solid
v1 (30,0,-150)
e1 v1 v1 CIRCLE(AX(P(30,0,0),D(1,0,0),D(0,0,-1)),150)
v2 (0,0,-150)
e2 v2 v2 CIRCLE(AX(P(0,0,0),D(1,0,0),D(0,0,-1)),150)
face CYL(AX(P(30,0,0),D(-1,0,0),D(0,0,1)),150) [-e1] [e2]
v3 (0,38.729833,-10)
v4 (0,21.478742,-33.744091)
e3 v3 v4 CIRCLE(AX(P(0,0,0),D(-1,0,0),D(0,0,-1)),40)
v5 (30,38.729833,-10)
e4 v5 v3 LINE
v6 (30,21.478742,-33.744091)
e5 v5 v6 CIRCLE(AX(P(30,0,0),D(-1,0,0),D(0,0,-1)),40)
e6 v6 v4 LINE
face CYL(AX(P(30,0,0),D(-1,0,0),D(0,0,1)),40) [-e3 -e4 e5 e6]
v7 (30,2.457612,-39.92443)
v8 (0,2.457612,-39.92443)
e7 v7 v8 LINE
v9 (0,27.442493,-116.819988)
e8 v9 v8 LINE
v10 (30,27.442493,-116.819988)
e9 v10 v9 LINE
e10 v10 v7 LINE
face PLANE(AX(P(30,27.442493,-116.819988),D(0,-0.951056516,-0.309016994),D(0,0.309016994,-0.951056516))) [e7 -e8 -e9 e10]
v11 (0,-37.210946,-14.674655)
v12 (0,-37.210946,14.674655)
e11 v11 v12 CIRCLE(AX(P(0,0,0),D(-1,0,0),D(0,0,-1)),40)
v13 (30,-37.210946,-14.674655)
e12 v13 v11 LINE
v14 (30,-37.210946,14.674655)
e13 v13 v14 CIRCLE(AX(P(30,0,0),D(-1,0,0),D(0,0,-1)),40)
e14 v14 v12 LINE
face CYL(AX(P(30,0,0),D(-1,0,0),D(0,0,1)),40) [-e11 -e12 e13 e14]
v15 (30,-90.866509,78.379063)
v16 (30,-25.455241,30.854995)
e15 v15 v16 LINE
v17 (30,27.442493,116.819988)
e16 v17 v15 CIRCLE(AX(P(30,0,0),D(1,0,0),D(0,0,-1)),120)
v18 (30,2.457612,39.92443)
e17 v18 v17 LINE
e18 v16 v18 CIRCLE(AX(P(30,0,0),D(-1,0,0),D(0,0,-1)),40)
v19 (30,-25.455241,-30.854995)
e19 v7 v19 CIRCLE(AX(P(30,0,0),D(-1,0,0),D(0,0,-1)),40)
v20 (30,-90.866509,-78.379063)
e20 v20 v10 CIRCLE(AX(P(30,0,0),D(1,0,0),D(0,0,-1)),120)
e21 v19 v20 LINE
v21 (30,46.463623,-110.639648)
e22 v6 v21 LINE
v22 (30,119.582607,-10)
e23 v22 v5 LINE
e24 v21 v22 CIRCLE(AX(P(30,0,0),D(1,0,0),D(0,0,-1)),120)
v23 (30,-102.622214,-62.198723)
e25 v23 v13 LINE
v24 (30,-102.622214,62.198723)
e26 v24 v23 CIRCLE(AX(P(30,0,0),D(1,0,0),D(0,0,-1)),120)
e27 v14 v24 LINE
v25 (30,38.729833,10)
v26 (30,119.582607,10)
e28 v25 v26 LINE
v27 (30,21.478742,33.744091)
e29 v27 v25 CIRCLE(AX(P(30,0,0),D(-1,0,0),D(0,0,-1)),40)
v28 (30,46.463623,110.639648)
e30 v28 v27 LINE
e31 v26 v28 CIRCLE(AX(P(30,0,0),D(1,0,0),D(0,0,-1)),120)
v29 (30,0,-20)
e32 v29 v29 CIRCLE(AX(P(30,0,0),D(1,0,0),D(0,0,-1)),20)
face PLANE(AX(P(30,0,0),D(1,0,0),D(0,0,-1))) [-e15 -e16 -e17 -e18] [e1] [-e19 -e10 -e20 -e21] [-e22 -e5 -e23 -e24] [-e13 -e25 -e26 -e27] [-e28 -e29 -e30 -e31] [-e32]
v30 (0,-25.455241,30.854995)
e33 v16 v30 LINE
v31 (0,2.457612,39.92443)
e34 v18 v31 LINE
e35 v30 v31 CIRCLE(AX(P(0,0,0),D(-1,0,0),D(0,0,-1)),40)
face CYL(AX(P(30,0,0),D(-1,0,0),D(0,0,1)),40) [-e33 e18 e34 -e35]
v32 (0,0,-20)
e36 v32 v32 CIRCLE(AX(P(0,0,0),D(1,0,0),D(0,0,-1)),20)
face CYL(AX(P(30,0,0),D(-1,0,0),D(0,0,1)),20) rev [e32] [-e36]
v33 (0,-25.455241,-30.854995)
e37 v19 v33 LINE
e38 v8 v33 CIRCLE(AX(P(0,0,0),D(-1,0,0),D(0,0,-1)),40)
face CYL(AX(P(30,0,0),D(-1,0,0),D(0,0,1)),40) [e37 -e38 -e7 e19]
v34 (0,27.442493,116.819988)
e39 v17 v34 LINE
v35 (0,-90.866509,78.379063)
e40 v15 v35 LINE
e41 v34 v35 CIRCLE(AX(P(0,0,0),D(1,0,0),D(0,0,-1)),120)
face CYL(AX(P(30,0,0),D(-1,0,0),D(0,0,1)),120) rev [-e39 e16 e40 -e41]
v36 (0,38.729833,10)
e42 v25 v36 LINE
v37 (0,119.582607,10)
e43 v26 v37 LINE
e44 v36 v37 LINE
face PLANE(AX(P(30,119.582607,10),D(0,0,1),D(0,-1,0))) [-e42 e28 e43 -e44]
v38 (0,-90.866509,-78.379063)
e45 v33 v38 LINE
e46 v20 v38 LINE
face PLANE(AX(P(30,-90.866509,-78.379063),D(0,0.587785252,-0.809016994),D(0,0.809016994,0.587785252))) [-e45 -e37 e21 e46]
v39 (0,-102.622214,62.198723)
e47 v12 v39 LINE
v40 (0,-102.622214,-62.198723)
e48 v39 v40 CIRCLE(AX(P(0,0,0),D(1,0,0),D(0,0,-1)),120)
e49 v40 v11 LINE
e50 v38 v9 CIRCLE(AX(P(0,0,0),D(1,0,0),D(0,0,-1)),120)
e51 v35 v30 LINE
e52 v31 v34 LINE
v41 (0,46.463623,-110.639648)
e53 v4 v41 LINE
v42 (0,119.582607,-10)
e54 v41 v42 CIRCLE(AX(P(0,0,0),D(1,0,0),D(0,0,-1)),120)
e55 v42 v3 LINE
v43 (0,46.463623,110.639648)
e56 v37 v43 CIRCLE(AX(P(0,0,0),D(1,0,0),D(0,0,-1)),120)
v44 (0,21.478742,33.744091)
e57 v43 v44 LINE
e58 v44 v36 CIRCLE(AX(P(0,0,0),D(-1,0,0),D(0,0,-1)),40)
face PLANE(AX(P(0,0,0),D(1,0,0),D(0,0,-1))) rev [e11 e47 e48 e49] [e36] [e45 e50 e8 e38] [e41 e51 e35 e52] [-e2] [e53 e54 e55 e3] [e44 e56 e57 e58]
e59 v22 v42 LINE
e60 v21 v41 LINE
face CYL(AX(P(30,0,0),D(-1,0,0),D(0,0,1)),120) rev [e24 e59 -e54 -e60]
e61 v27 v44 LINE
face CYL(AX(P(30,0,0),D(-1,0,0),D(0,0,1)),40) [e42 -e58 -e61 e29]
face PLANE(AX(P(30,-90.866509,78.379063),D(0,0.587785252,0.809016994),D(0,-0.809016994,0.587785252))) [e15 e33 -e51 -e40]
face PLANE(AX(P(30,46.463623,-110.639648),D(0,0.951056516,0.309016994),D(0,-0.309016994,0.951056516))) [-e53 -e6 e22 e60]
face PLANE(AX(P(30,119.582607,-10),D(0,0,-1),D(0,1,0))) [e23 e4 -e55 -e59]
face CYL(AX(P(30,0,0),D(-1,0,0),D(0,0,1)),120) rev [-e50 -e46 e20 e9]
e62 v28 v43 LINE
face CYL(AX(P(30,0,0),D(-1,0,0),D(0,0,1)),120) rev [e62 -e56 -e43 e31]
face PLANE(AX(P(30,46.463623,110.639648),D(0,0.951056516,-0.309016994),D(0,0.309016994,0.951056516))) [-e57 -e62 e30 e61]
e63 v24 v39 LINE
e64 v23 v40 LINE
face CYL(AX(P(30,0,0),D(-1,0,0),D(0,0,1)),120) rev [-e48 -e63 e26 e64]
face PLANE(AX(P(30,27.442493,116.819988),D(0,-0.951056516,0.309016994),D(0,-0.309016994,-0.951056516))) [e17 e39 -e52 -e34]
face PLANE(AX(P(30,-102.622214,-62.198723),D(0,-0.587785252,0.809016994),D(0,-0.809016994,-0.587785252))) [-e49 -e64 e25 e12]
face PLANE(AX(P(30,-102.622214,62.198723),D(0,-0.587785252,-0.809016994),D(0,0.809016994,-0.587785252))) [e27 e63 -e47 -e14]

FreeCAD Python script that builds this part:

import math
import FreeCAD as App
import Part
import Sketcher
Q = App.Units.Quantity

doc = App.newDocument("Part")
body = doc.addObject("PartDesign::Body", "Body")

sketch1 = body.newObject("Sketcher::SketchObject", "Sketch")
sketch1.AttachmentSupport = (doc.getObject("YZ_Plane"), [""])
sketch1.MapMode = "FlatFace"
sketch1.addGeometry(Part.Circle(App.Vector(0, 0, 0), App.Vector(0, 0, 1), 150), False)
sketch1.addGeometry(Part.LineSegment(App.Vector(-37, -15, 0), App.Vector(-103, -62, 0)), False)
sketch1.addGeometry(Part.ArcOfCircle(Part.Circle(App.Vector(0, 0, 0), App.Vector(0, 0, 1), 120), math.radians(149), math.radians(211)), False)
sketch1.addGeometry(Part.LineSegment(App.Vector(-103, 62, 0), App.Vector(-37, 15, 0)), False)
sketch1.addGeometry(Part.ArcOfCircle(Part.Circle(App.Vector(0, 0, 0), App.Vector(0, 0, 1), 40), math.radians(158), math.radians(202)), False)
sketch1.addGeometry(Part.LineSegment(App.Vector(-25, 31, 0), App.Vector(-91, 78, 0)), False)
sketch1.addGeometry(Part.ArcOfCircle(Part.Circle(App.Vector(0, 0, 0), App.Vector(0, 0, 1), 120), math.radians(77), math.radians(139)), False)
sketch1.addGeometry(Part.LineSegment(App.Vector(27, 117, 0), App.Vector(2, 40, 0)), False)
sketch1.addGeometry(Part.ArcOfCircle(Part.Circle(App.Vector(0, 0, 0), App.Vector(0, 0, 1), 40), math.radians(86), math.radians(130)), False)
sketch1.addGeometry(Part.LineSegment(App.Vector(2, -40, 0), App.Vector(27, -117, 0)), False)
sketch1.addGeometry(Part.ArcOfCircle(Part.Circle(App.Vector(0, 0, 0), App.Vector(0, 0, 1), 120), math.radians(-139), math.radians(-77)), False)
sketch1.addGeometry(Part.LineSegment(App.Vector(-91, -78, 0), App.Vector(-25, -31, 0)), False)
sketch1.addGeometry(Part.ArcOfCircle(Part.Circle(App.Vector(0, 0, 0), App.Vector(0, 0, 1), 40), math.radians(-130), math.radians(-86)), False)
sketch1.addGeometry(Part.Circle(App.Vector(0, 0, 0), App.Vector(0, 0, 1), 20), False)
sketch1.addGeometry(Part.ArcOfCircle(Part.Circle(App.Vector(0, 0, 0), App.Vector(0, 0, 1), 120), math.radians(5), math.radians(67)), False)
sketch1.addGeometry(Part.LineSegment(App.Vector(120, 10, 0), App.Vector(39, 10, 0)), False)
sketch1.addGeometry(Part.ArcOfCircle(Part.Circle(App.Vector(0, 0, 0), App.Vector(0, 0, 1), 40), math.radians(14), math.radians(58)), False)
sketch1.addGeometry(Part.LineSegment(App.Vector(21, 34, 0), App.Vector(46, 111, 0)), False)
sketch1.addGeometry(Part.ArcOfCircle(Part.Circle(App.Vector(0, 0, 0), App.Vector(0, 0, 1), 120), math.radians(-67), math.radians(-5)), False)
sketch1.addGeometry(Part.LineSegment(App.Vector(46, -111, 0), App.Vector(21, -34, 0)), False)
sketch1.addGeometry(Part.ArcOfCircle(Part.Circle(App.Vector(0, 0, 0), App.Vector(0, 0, 1), 40), math.radians(-58), math.radians(-14)), False)
sketch1.addGeometry(Part.LineSegment(App.Vector(39, -10, 0), App.Vector(120, -10, 0)), False)
sketch1.addConstraint(Sketcher.Constraint("Coincident", 1, 2, 2, 2))
sketch1.addConstraint(Sketcher.Constraint("Coincident", 2, 1, 3, 1))
sketch1.addConstraint(Sketcher.Constraint("Coincident", 3, 2, 4, 1))
sketch1.addConstraint(Sketcher.Constraint("Coincident", 4, 2, 1, 1))
sketch1.addConstraint(Sketcher.Constraint("Coincident", 5, 2, 6, 2))
sketch1.addConstraint(Sketcher.Constraint("Coincident", 6, 1, 7, 1))
sketch1.addConstraint(Sketcher.Constraint("Coincident", 7, 2, 8, 1))
sketch1.addConstraint(Sketcher.Constraint("Coincident", 8, 2, 5, 1))
sketch1.addConstraint(Sketcher.Constraint("Coincident", 9, 2, 10, 2))
sketch1.addConstraint(Sketcher.Constraint("Coincident", 10, 1, 11, 1))
sketch1.addConstraint(Sketcher.Constraint("Coincident", 11, 2, 12, 1))
sketch1.addConstraint(Sketcher.Constraint("Coincident", 12, 2, 9, 1))
sketch1.addConstraint(Sketcher.Constraint("Coincident", 14, 1, 15, 1))
sketch1.addConstraint(Sketcher.Constraint("Coincident", 15, 2, 16, 1))
sketch1.addConstraint(Sketcher.Constraint("Coincident", 16, 2, 17, 1))
sketch1.addConstraint(Sketcher.Constraint("Coincident", 17, 2, 14, 2))
sketch1.addConstraint(Sketcher.Constraint("Coincident", 18, 1, 19, 1))
sketch1.addConstraint(Sketcher.Constraint("Coincident", 19, 2, 20, 1))
sketch1.addConstraint(Sketcher.Constraint("Coincident", 20, 2, 21, 1))
sketch1.addConstraint(Sketcher.Constraint("Coincident", 21, 2, 18, 2))
sketch1.addConstraint(Sketcher.Constraint("Horizontal", 15))
sketch1.addConstraint(Sketcher.Constraint("Horizontal", 21))
sketch1.addConstraint(Sketcher.Constraint("Coincident", 0, 3, -1, 1))
sketch1.addConstraint(Sketcher.Constraint("Coincident", 2, 3, -1, 1))
sketch1.addConstraint(Sketcher.Constraint("Coincident", 4, 3, -1, 1))
sketch1.addConstraint(Sketcher.Constraint("Coincident", 6, 3, -1, 1))
sketch1.addConstraint(Sketcher.Constraint("Coincident", 8, 3, -1, 1))
sketch1.addConstraint(Sketcher.Constraint("Coincident", 10, 3, -1, 1))
sketch1.addConstraint(Sketcher.Constraint("Coincident", 12, 3, -1, 1))
sketch1.addConstraint(Sketcher.Constraint("Coincident", 13, 3, -1, 1))
sketch1.addConstraint(Sketcher.Constraint("Coincident", 14, 3, -1, 1))
sketch1.addConstraint(Sketcher.Constraint("Coincident", 16, 3, -1, 1))
sketch1.addConstraint(Sketcher.Constraint("Coincident", 18, 3, -1, 1))
sketch1.addConstraint(Sketcher.Constraint("Coincident", 20, 3, -1, 1))
sketch1.addConstraint(Sketcher.Constraint("Equal", 2, 6))
sketch1.addConstraint(Sketcher.Constraint("Equal", 4, 8))
sketch1.addConstraint(Sketcher.Constraint("Equal", 6, 10))
sketch1.addConstraint(Sketcher.Constraint("Equal", 8, 12))
sketch1.addConstraint(Sketcher.Constraint("Equal", 10, 14))
sketch1.addConstraint(Sketcher.Constraint("Equal", 12, 16))
sketch1.addConstraint(Sketcher.Constraint("Equal", 14, 18))
sketch1.addConstraint(Sketcher.Constraint("Equal", 16, 20))
sketch1.addConstraint(Sketcher.Constraint("Parallel", 3, 5))
sketch1.addConstraint(Sketcher.Constraint("Parallel", 1, 11))
sketch1.addConstraint(Sketcher.Constraint("Parallel", 7, 17))
sketch1.addConstraint(Sketcher.Constraint("Parallel", 9, 19))
sketch1.addConstraint(Sketcher.Constraint("Vertical", 1, 2, 2, 1))
sketch1.addConstraint(Sketcher.Constraint("Vertical", 3, 2, 4, 2))
sketch1.addConstraint(Sketcher.Constraint("Vertical", 6, 1, 9, 2))
sketch1.addConstraint(Sketcher.Constraint("Vertical", 5, 2, 10, 1))
sketch1.addConstraint(Sketcher.Constraint("Vertical", 7, 2, 12, 2))
sketch1.addConstraint(Sketcher.Constraint("Vertical", 17, 2, 18, 1))
sketch1.addConstraint(Sketcher.Constraint("Vertical", 15, 2, 20, 2))
sketch1.addConstraint(Sketcher.Constraint("Equal", 3, 5))
sketch1.addConstraint(Sketcher.Constraint("Equal", 5, 7))
sketch1.addConstraint(Sketcher.Constraint("Equal", 11, 17))
sketch1.addConstraint(Sketcher.Constraint("Diameter", 0, Q("300 mm")))
sketch1.addConstraint(Sketcher.Constraint("Diameter", 13, Q("40 mm")))
sketch1.addConstraint(Sketcher.Constraint("Radius", 2, Q("120 mm")))
sketch1.addConstraint(Sketcher.Constraint("Radius", 4, Q("40 mm")))
sketch1.addConstraint(Sketcher.Constraint("Angle", 1, Q("-144 deg")))
sketch1.addConstraint(Sketcher.Constraint("Angle", 7, Q("-108 deg")))
sketch1.addConstraint(Sketcher.Constraint("DistanceY", -1, 1, 14, 1, Q("10 mm")))
sketch1.addConstraint(Sketcher.Constraint("DistanceX", 5, 2, -1, 1, Q("90.866509 mm")))
pad1 = body.newObject("PartDesign::Pad", "Pad")
pad1.Profile = sketch1
pad1.Length = 30

doc.recompute()
